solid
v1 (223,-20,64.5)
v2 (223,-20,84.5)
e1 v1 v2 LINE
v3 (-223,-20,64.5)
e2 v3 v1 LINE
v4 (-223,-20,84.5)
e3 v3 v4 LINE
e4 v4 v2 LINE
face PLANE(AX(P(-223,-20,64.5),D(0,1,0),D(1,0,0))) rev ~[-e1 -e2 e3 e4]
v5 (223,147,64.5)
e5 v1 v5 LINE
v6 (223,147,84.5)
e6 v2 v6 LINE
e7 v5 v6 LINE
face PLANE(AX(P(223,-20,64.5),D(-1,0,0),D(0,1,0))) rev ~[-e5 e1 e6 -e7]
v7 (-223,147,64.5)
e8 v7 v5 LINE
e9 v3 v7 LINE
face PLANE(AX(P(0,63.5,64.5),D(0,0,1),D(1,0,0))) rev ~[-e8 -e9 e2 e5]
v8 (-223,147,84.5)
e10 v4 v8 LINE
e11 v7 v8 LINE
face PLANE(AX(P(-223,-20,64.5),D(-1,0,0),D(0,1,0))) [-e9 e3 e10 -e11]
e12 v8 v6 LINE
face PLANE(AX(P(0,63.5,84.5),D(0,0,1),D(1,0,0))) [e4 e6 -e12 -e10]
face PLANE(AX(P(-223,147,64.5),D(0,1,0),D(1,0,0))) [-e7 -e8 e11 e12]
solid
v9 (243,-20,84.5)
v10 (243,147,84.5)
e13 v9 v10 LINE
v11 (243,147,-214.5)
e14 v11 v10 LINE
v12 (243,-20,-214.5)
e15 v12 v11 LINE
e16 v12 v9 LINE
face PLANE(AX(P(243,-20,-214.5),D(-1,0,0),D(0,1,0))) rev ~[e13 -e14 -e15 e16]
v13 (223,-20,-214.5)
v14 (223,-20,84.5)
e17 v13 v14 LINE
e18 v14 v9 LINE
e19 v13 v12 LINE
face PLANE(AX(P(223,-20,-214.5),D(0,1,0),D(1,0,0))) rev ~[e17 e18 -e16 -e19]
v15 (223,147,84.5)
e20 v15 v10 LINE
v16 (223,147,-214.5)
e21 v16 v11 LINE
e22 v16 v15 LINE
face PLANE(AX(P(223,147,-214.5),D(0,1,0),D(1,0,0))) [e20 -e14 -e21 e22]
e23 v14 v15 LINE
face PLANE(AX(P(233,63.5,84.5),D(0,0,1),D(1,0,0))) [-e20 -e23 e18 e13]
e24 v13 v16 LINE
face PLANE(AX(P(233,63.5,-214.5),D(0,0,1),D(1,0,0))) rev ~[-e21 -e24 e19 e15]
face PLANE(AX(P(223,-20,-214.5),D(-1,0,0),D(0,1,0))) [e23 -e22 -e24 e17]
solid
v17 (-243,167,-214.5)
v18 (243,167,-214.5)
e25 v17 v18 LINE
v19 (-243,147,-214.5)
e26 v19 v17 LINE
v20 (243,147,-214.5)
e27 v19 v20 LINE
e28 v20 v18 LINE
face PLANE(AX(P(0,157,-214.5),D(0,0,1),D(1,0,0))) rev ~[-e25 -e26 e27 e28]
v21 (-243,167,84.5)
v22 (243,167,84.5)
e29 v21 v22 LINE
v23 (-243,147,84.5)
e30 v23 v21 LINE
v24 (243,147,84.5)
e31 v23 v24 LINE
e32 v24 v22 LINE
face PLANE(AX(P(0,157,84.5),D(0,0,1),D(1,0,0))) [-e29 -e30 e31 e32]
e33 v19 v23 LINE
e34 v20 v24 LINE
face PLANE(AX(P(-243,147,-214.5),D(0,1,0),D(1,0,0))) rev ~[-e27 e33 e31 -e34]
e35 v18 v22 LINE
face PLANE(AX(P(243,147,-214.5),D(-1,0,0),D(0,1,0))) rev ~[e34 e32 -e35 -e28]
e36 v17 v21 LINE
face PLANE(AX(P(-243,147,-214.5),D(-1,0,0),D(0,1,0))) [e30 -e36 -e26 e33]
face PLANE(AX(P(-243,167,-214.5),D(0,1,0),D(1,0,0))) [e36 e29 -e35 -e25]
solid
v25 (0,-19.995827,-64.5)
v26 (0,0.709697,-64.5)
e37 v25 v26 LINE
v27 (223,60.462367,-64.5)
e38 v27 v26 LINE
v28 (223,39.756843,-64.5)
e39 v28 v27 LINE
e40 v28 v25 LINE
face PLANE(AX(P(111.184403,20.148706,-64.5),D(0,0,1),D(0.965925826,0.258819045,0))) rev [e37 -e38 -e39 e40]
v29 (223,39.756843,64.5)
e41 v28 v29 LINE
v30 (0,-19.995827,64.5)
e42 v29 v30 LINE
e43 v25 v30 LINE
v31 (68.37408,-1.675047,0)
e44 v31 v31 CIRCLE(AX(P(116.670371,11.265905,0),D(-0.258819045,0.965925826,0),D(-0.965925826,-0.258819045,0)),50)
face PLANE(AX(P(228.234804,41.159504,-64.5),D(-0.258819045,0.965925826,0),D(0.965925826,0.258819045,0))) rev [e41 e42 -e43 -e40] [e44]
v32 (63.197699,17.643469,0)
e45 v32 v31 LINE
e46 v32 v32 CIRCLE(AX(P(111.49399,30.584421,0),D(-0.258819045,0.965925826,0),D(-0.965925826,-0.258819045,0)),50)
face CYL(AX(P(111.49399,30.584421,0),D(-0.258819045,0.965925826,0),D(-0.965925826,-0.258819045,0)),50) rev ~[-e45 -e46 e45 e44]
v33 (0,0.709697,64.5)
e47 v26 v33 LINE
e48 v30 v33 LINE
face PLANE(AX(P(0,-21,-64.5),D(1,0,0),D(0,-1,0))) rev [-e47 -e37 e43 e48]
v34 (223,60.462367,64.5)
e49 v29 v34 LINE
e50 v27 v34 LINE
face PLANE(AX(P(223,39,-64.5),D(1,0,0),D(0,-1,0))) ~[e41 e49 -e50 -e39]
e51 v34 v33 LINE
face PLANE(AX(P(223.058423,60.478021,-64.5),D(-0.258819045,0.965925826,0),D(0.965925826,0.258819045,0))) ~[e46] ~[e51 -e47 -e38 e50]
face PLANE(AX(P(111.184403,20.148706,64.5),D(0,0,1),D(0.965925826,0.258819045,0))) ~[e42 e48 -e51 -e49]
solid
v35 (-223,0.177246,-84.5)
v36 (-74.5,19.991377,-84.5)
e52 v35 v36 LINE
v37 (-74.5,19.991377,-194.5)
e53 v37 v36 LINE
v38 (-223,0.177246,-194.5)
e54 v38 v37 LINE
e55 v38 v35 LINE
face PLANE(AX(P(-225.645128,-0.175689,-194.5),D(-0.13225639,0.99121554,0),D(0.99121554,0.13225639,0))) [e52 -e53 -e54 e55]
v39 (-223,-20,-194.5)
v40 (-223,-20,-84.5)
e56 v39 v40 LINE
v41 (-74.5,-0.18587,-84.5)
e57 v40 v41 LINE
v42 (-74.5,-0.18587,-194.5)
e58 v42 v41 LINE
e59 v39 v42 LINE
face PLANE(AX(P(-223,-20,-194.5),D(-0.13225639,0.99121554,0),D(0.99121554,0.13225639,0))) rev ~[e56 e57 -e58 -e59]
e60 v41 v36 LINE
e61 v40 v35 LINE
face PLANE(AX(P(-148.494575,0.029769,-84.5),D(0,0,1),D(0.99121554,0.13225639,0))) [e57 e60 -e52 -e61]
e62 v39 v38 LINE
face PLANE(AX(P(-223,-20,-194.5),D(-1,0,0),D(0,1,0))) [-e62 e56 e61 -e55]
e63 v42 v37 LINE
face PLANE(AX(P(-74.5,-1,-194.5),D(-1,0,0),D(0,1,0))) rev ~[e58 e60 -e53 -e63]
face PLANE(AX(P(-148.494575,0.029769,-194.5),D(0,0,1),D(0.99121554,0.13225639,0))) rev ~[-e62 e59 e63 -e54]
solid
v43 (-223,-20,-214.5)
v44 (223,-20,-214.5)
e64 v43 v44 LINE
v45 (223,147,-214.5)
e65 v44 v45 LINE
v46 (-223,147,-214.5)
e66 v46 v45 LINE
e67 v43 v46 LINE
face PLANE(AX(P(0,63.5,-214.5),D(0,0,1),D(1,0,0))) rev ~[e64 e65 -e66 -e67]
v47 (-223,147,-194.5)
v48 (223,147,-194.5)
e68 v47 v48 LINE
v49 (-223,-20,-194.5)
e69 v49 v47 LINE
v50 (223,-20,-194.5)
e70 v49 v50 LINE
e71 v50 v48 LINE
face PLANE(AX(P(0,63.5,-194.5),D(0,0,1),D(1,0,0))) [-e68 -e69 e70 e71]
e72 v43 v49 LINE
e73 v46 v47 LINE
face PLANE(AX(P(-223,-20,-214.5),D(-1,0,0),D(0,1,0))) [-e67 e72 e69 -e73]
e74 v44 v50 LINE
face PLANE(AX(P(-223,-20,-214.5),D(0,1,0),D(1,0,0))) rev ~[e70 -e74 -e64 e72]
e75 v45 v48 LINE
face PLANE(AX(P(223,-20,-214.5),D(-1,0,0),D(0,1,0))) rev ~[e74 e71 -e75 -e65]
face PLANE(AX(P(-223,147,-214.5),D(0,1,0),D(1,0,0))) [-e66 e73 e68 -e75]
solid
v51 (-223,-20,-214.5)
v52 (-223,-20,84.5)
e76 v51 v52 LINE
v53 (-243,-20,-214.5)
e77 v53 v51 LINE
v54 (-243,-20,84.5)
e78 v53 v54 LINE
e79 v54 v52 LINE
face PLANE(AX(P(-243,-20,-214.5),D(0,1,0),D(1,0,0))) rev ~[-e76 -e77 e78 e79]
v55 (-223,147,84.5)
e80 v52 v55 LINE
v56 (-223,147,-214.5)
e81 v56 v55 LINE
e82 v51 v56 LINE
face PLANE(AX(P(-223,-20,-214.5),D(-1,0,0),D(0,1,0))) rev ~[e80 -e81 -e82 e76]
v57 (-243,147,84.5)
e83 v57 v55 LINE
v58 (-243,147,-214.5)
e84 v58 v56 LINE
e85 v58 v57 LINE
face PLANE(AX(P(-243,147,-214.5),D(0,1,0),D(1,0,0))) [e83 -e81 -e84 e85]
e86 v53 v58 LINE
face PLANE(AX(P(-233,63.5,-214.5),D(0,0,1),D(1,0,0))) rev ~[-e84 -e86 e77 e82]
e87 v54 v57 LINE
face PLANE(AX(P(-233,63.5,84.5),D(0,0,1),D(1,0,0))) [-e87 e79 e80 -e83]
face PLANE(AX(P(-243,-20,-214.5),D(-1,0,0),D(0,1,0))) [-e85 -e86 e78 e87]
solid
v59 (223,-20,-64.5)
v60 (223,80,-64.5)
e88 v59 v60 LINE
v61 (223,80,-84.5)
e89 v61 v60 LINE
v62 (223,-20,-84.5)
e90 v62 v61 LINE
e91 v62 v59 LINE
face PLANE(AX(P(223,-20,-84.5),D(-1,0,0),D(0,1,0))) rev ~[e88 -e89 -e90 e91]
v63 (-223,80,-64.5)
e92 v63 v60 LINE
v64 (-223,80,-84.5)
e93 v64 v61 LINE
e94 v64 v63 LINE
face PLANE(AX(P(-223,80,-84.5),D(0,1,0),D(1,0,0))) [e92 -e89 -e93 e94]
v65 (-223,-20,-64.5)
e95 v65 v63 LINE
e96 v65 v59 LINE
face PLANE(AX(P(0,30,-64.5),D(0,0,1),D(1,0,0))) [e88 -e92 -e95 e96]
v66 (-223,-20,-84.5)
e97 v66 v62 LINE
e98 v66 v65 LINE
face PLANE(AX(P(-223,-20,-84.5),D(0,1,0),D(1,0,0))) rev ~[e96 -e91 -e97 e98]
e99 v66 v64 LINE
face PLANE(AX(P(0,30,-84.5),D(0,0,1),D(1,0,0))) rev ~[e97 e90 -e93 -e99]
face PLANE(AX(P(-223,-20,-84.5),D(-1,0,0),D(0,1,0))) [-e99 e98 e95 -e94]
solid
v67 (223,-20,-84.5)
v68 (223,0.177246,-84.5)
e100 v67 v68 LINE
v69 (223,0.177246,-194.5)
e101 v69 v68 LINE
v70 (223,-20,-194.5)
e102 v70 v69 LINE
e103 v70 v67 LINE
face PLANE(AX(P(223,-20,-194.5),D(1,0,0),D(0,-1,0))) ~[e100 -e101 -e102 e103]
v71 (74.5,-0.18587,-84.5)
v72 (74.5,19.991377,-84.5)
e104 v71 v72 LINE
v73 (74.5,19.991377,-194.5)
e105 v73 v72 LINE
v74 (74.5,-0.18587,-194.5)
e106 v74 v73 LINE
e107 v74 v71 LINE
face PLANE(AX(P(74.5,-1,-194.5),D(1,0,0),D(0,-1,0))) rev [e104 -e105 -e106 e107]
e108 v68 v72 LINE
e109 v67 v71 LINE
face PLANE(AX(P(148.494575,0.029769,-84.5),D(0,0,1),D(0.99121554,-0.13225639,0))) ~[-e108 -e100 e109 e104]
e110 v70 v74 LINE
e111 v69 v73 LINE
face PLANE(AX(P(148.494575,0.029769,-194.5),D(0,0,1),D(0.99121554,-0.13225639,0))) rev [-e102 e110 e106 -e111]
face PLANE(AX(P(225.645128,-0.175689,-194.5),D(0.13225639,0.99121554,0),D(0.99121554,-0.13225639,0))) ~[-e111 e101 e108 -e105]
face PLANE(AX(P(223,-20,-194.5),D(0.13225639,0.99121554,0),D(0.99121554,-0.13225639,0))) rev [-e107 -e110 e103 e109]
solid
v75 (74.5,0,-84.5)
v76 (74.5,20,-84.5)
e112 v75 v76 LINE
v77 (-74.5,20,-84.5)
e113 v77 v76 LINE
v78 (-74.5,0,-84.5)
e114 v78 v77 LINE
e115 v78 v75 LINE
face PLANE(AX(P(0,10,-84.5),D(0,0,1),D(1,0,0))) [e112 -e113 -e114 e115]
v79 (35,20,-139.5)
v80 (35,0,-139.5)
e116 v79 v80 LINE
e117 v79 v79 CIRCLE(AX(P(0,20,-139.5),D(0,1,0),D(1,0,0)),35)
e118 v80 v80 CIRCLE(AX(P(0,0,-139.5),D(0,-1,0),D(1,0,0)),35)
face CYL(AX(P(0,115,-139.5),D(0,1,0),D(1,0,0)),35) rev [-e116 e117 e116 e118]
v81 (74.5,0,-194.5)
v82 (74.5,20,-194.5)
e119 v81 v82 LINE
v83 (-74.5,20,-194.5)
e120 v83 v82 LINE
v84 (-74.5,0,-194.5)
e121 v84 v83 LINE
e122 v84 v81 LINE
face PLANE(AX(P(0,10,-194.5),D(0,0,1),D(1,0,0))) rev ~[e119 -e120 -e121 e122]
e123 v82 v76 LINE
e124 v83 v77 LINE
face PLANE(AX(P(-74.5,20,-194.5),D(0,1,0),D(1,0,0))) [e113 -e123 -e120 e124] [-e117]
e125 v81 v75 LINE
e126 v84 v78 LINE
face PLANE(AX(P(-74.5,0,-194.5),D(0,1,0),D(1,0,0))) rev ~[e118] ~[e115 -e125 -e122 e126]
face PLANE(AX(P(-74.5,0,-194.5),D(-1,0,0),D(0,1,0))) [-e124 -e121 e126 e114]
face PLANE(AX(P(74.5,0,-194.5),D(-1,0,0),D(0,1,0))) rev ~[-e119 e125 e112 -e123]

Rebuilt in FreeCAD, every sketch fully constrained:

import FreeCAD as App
import Part
import Sketcher
Q = App.Units.Quantity

doc = App.newDocument("Part")
body = doc.addObject("PartDesign::Body", "Body")

# Sketch on XY plane
sketch1 = body.newObject("Sketcher::SketchObject", "Sketch")
sketch1.AttachmentSupport = (doc.getObject("XY_Plane"), [""])
sketch1.MapMode = "FlatFace"
sketch1.AttachmentOffset = App.Placement(App.Vector(0, 0, -214.5), App.Rotation())
sketch1.addGeometry(Part.LineSegment(App.Vector(-243, 147, 0), App.Vector(-243, -20, 0)), False)
sketch1.addGeometry(Part.LineSegment(App.Vector(-243, -20, 0), App.Vector(-223, -20, 0)), False)
sketch1.addGeometry(Part.LineSegment(App.Vector(-223, -20, 0), App.Vector(-223, 147, 0)), False)
sketch1.addGeometry(Part.LineSegment(App.Vector(-223, 147, 0), App.Vector(-243, 147, 0)), False)
sketch1.addConstraint(Sketcher.Constraint("Coincident", 0, 2, 1, 1))
sketch1.addConstraint(Sketcher.Constraint("Coincident", 1, 2, 2, 1))
sketch1.addConstraint(Sketcher.Constraint("Coincident", 2, 2, 3, 1))
sketch1.addConstraint(Sketcher.Constraint("Coincident", 3, 2, 0, 1))
sketch1.addConstraint(Sketcher.Constraint("Vertical", 0))
sketch1.addConstraint(Sketcher.Constraint("Horizontal", 1))
sketch1.addConstraint(Sketcher.Constraint("Vertical", 2))
sketch1.addConstraint(Sketcher.Constraint("Horizontal", 3))
sketch1.addConstraint(Sketcher.Constraint("DistanceX", 1, 1, 1, 2, Q("20 mm")))
sketch1.addConstraint(Sketcher.Constraint("DistanceY", 0, 2, 0, 1, Q("167 mm")))
sketch1.addConstraint(Sketcher.Constraint("DistanceX", 0, 2, -1, 1, Q("243 mm")))
sketch1.addConstraint(Sketcher.Constraint("DistanceY", 0, 2, -1, 1, Q("20 mm")))
pad1 = body.newObject("PartDesign::Pad", "Pad")
pad1.Profile = sketch1
pad1.Length = 299
body2 = doc.addObject("PartDesign::Body", "Body001")

# Sketch on XY plane
sketch2 = body2.newObject("Sketcher::SketchObject", "Sketch001")
sketch2.AttachmentSupport = (doc.getObject("XY_Plane001"), [""])
sketch2.MapMode = "FlatFace"
sketch2.AttachmentOffset = App.Placement(App.Vector(0, 0, -214.5), App.Rotation())
sketch2.addGeometry(Part.LineSegment(App.Vector(223, 147, 0), App.Vector(223, -20, 0)), False)
sketch2.addGeometry(Part.LineSegment(App.Vector(223, -20, 0), App.Vector(243, -20, 0)), False)
sketch2.addGeometry(Part.LineSegment(App.Vector(243, -20, 0), App.Vector(243, 147, 0)), False)
sketch2.addGeometry(Part.LineSegment(App.Vector(243, 147, 0), App.Vector(223, 147, 0)), False)
sketch2.addConstraint(Sketcher.Constraint("Coincident", 0, 2, 1, 1))
sketch2.addConstraint(Sketcher.Constraint("Coincident", 1, 2, 2, 1))
sketch2.addConstraint(Sketcher.Constraint("Coincident", 2, 2, 3, 1))
sketch2.addConstraint(Sketcher.Constraint("Coincident", 3, 2, 0, 1))
sketch2.addConstraint(Sketcher.Constraint("Vertical", 0))
sketch2.addConstraint(Sketcher.Constraint("Horizontal", 1))
sketch2.addConstraint(Sketcher.Constraint("Vertical", 2))
sketch2.addConstraint(Sketcher.Constraint("Horizontal", 3))
sketch2.addConstraint(Sketcher.Constraint("DistanceX", 1, 1, 1, 2, Q("20 mm")))
sketch2.addConstraint(Sketcher.Constraint("DistanceY", 0, 2, 0, 1, Q("167 mm")))
sketch2.addConstraint(Sketcher.Constraint("DistanceX", -1, 1, 0, 2, Q("223 mm")))
sketch2.addConstraint(Sketcher.Constraint("DistanceY", 0, 2, -1, 1, Q("20 mm")))
pad2 = body2.newObject("PartDesign::Pad", "Pad001")
pad2.Profile = sketch2
pad2.Length = 299
body3 = doc.addObject("PartDesign::Body", "Body002")

# Sketch on XY plane
sketch3 = body3.newObject("Sketcher::SketchObject", "Sketch002")
sketch3.AttachmentSupport = (doc.getObject("XY_Plane002"), [""])
sketch3.MapMode = "FlatFace"
sketch3.AttachmentOffset = App.Placement(App.Vector(0, 0, 64.5), App.Rotation())
sketch3.addGeometry(Part.LineSegment(App.Vector(-223, 147, 0), App.Vector(-223, -20, 0)), False)
sketch3.addGeometry(Part.LineSegment(App.Vector(-223, -20, 0), App.Vector(223, -20, 0)), False)
sketch3.addGeometry(Part.LineSegment(App.Vector(223, -20, 0), App.Vector(223, 147, 0)), False)
sketch3.addGeometry(Part.LineSegment(App.Vector(223, 147, 0), App.Vector(-223, 147, 0)), False)
sketch3.addConstraint(Sketcher.Constraint("Coincident", 0, 2, 1, 1))
sketch3.addConstraint(Sketcher.Constraint("Coincident", 1, 2, 2, 1))
sketch3.addConstraint(Sketcher.Constraint("Coincident", 2, 2, 3, 1))
sketch3.addConstraint(Sketcher.Constraint("Coincident", 3, 2, 0, 1))
sketch3.addConstraint(Sketcher.Constraint("Vertical", 0))
sketch3.addConstraint(Sketcher.Constraint("Horizontal", 1))
sketch3.addConstraint(Sketcher.Constraint("Vertical", 2))
sketch3.addConstraint(Sketcher.Constraint("Horizontal", 3))
sketch3.addConstraint(Sketcher.Constraint("DistanceX", 1, 1, 1, 2, Q("446 mm")))
sketch3.addConstraint(Sketcher.Constraint("DistanceY", 0, 2, 0, 1, Q("167 mm")))
sketch3.addConstraint(Sketcher.Constraint("DistanceX", 0, 2, -1, 1, Q("223 mm")))
sketch3.addConstraint(Sketcher.Constraint("DistanceY", 0, 2, -1, 1, Q("20 mm")))
pad3 = body3.newObject("PartDesign::Pad", "Pad002")
pad3.Profile = sketch3
pad3.Length = 20
body4 = doc.addObject("PartDesign::Body", "Body003")

# Sketch on XY plane
sketch4 = body4.newObject("Sketcher::SketchObject", "Sketch003")
sketch4.AttachmentSupport = (doc.getObject("XY_Plane003"), [""])
sketch4.MapMode = "FlatFace"
sketch4.AttachmentOffset = App.Placement(App.Vector(0, 0, -214.5), App.Rotation())
sketch4.addGeometry(Part.LineSegment(App.Vector(-243, 167, 0), App.Vector(-243, 147, 0)), False)
sketch4.addGeometry(Part.LineSegment(App.Vector(-243, 147, 0), App.Vector(243, 147, 0)), False)
sketch4.addGeometry(Part.LineSegment(App.Vector(243, 147, 0), App.Vector(243, 167, 0)), False)
sketch4.addGeometry(Part.LineSegment(App.Vector(243, 167, 0), App.Vector(-243, 167, 0)), False)
sketch4.addConstraint(Sketcher.Constraint("Coincident", 0, 2, 1, 1))
sketch4.addConstraint(Sketcher.Constraint("Coincident", 1, 2, 2, 1))
sketch4.addConstraint(Sketcher.Constraint("Coincident", 2, 2, 3, 1))
sketch4.addConstraint(Sketcher.Constraint("Coincident", 3, 2, 0, 1))
sketch4.addConstraint(Sketcher.Constraint("Vertical", 0))
sketch4.addConstraint(Sketcher.Constraint("Horizontal", 1))
sketch4.addConstraint(Sketcher.Constraint("Vertical", 2))
sketch4.addConstraint(Sketcher.Constraint("Horizontal", 3))
sketch4.addConstraint(Sketcher.Constraint("DistanceX", 1, 1, 1, 2, Q("486 mm")))
sketch4.addConstraint(Sketcher.Constraint("DistanceY", 0, 2, 0, 1, Q("20 mm")))
sketch4.addConstraint(Sketcher.Constraint("DistanceX", 0, 2, -1, 1, Q("243 mm")))
sketch4.addConstraint(Sketcher.Constraint("DistanceY", -1, 1, 0, 2, Q("147 mm")))
pad4 = body4.newObject("PartDesign::Pad", "Pad003")
pad4.Profile = sketch4
pad4.Length = 299
body5 = doc.addObject("PartDesign::Body", "Body004")

# Sketch on XY plane
sketch5 = body5.newObject("Sketcher::SketchObject", "Sketch004")
sketch5.AttachmentSupport = (doc.getObject("XY_Plane004"), [""])
sketch5.MapMode = "FlatFace"
sketch5.AttachmentOffset = App.Placement(App.Vector(0, 0, -214.5), App.Rotation())
sketch5.addGeometry(Part.LineSegment(App.Vector(-223, 147, 0), App.Vector(-223, -20, 0)), False)
sketch5.addGeometry(Part.LineSegment(App.Vector(-223, -20, 0), App.Vector(223, -20, 0)), False)
sketch5.addGeometry(Part.LineSegment(App.Vector(223, -20, 0), App.Vector(223, 147, 0)), False)
sketch5.addGeometry(Part.LineSegment(App.Vector(223, 147, 0), App.Vector(-223, 147, 0)), False)
sketch5.addConstraint(Sketcher.Constraint("Coincident", 0, 2, 1, 1))
sketch5.addConstraint(Sketcher.Constraint("Coincident", 1, 2, 2, 1))
sketch5.addConstraint(Sketcher.Constraint("Coincident", 2, 2, 3, 1))
sketch5.addConstraint(Sketcher.Constraint("Coincident", 3, 2, 0, 1))
sketch5.addConstraint(Sketcher.Constraint("Vertical", 0))
sketch5.addConstraint(Sketcher.Constraint("Horizontal", 1))
sketch5.addConstraint(Sketcher.Constraint("Vertical", 2))
sketch5.addConstraint(Sketcher.Constraint("Horizontal", 3))
sketch5.addConstraint(Sketcher.Constraint("DistanceX", 1, 1, 1, 2, Q("446 mm")))
sketch5.addConstraint(Sketcher.Constraint("DistanceY", 0, 2, 0, 1, Q("167 mm")))
sketch5.addConstraint(Sketcher.Constraint("DistanceX", 0, 2, -1, 1, Q("223 mm")))
sketch5.addConstraint(Sketcher.Constraint("DistanceY", 0, 2, -1, 1, Q("20 mm")))
pad5 = body5.newObject("PartDesign::Pad", "Pad004")
pad5.Profile = sketch5
pad5.Length = 20
body6 = doc.addObject("PartDesign::Body", "Body005")

# Sketch on XY plane
sketch6 = body6.newObject("Sketcher::SketchObject", "Sketch005")
sketch6.AttachmentSupport = (doc.getObject("XY_Plane005"), [""])
sketch6.MapMode = "FlatFace"
sketch6.AttachmentOffset = App.Placement(App.Vector(0, 0, -84.5), App.Rotation())
sketch6.addGeometry(Part.LineSegment(App.Vector(-223, 80, 0), App.Vector(-223, -20, 0)), False)
sketch6.addGeometry(Part.LineSegment(App.Vector(-223, -20, 0), App.Vector(223, -20, 0)), False)
sketch6.addGeometry(Part.LineSegment(App.Vector(223, -20, 0), App.Vector(223, 80, 0)), False)
sketch6.addGeometry(Part.LineSegment(App.Vector(223, 80, 0), App.Vector(-223, 80, 0)), False)
sketch6.addConstraint(Sketcher.Constraint("Coincident", 0, 2, 1, 1))
sketch6.addConstraint(Sketcher.Constraint("Coincident", 1, 2, 2, 1))
sketch6.addConstraint(Sketcher.Constraint("Coincident", 2, 2, 3, 1))
sketch6.addConstraint(Sketcher.Constraint("Coincident", 3, 2, 0, 1))
sketch6.addConstraint(Sketcher.Constraint("Vertical", 0))
sketch6.addConstraint(Sketcher.Constraint("Horizontal", 1))
sketch6.addConstraint(Sketcher.Constraint("Vertical", 2))
sketch6.addConstraint(Sketcher.Constraint("Horizontal", 3))
sketch6.addConstraint(Sketcher.Constraint("DistanceX", 1, 1, 1, 2, Q("446 mm")))
sketch6.addConstraint(Sketcher.Constraint("DistanceY", 0, 2, 0, 1, Q("100 mm")))
sketch6.addConstraint(Sketcher.Constraint("DistanceX", 0, 2, -1, 1, Q("223 mm")))
sketch6.addConstraint(Sketcher.Constraint("DistanceY", 0, 2, -1, 1, Q("20 mm")))
pad6 = body6.newObject("PartDesign::Pad", "Pad005")
pad6.Profile = sketch6
pad6.Length = 20
body7 = doc.addObject("PartDesign::Body", "Body006")

# Sketch on XY plane
sketch7 = body7.newObject("Sketcher::SketchObject", "Sketch006")
sketch7.AttachmentSupport = (doc.getObject("XY_Plane006"), [""])
sketch7.MapMode = "FlatFace"
sketch7.addGeometry(Part.Circle(App.Vector(0, 0, 0), App.Vector(0, 0, 1), 35), False)
sketch7.addConstraint(Sketcher.Constraint("Coincident", 0, 3, -1, 1))
sketch7.addConstraint(Sketcher.Constraint("Diameter", 0, Q("70 mm")))
pad7 = body7.newObject("PartDesign::Pad", "Pad006")
pad7.Profile = sketch7
pad7.Length = 115
body8 = doc.addObject("PartDesign::Body", "Body007")
doc.recompute()

body7.Placement = App.Placement(App.Vector(0, 0, 0), App.Rotation(App.Vector(1, 0, 0), 90))
boolean = body8.newObject("PartDesign::Boolean", "Boolean")
boolean.Type = "Fuse"
boolean.addObjects([body7])
body9 = doc.addObject("PartDesign::Body", "Body008")
doc.recompute()

body8.Placement = App.Placement(App.Vector(0, 115, -139.5), App.Rotation(App.Vector(0, 0, 1), 0))
boolean2 = body9.newObject("PartDesign::Boolean", "Boolean001")
boolean2.Type = "Fuse"
boolean2.addObjects([body8])
body10 = doc.addObject("PartDesign::Body", "Body009")

# Sketch on XY plane
sketch8 = body10.newObject("Sketcher::SketchObject", "Sketch007")
sketch8.AttachmentSupport = (doc.getObject("XY_Plane009"), [""])
sketch8.MapMode = "FlatFace"
sketch8.AttachmentOffset = App.Placement(App.Vector(0, 0, -194.5), App.Rotation())
sketch8.addGeometry(Part.LineSegment(App.Vector(-74, 20, 0), App.Vector(-74, 0, 0)), False)
sketch8.addGeometry(Part.LineSegment(App.Vector(-74, 0, 0), App.Vector(74, 0, 0)), False)
sketch8.addGeometry(Part.LineSegment(App.Vector(74, 0, 0), App.Vector(74, 20, 0)), False)
sketch8.addGeometry(Part.LineSegment(App.Vector(74, 20, 0), App.Vector(-74, 20, 0)), False)
sketch8.addConstraint(Sketcher.Constraint("Coincident", 0, 2, 1, 1))
sketch8.addConstraint(Sketcher.Constraint("Coincident", 1, 2, 2, 1))
sketch8.addConstraint(Sketcher.Constraint("Coincident", 2, 2, 3, 1))
sketch8.addConstraint(Sketcher.Constraint("Coincident", 3, 2, 0, 1))
sketch8.addConstraint(Sketcher.Constraint("Vertical", 0))
sketch8.addConstraint(Sketcher.Constraint("Horizontal", 1))
sketch8.addConstraint(Sketcher.Constraint("Vertical", 2))
sketch8.addConstraint(Sketcher.Constraint("Horizontal", 3))
sketch8.addConstraint(Sketcher.Constraint("Symmetric", 0, 2, 1, 2, -1, 1))
sketch8.addConstraint(Sketcher.Constraint("DistanceX", 1, 1, 1, 2, Q("149 mm")))
sketch8.addConstraint(Sketcher.Constraint("DistanceY", 0, 2, 0, 1, Q("20 mm")))
pad8 = body10.newObject("PartDesign::Pad", "Pad007")
pad8.Profile = sketch8
pad8.Length = 110
doc.recompute()

boolean3 = body10.newObject("PartDesign::Boolean", "Boolean002")
boolean3.Type = "Cut"
boolean3.addObjects([body9])
body11 = doc.addObject("PartDesign::Body", "Body010")

# Sketch on XY plane
sketch9 = body11.newObject("Sketcher::SketchObject", "Sketch008")
sketch9.AttachmentSupport = (doc.getObject("XY_Plane010"), [""])
sketch9.MapMode = "FlatFace"
sketch9.AttachmentOffset = App.Placement(App.Vector(0, 0, -194.5), App.Rotation())
sketch9.addGeometry(Part.LineSegment(App.Vector(-74, 22, 0), App.Vector(-74, -1, 0)), False)
sketch9.addGeometry(Part.LineSegment(App.Vector(-74, -1, 0), App.Vector(-64, -1, 0)), False)
sketch9.addGeometry(Part.LineSegment(App.Vector(-64, -1, 0), App.Vector(-64, 22, 0)), False)
sketch9.addGeometry(Part.LineSegment(App.Vector(-64, 22, 0), App.Vector(-74, 22, 0)), False)
sketch9.addConstraint(Sketcher.Constraint("Coincident", 0, 2, 1, 1))
sketch9.addConstraint(Sketcher.Constraint("Coincident", 1, 2, 2, 1))
sketch9.addConstraint(Sketcher.Constraint("Coincident", 2, 2, 3, 1))
sketch9.addConstraint(Sketcher.Constraint("Coincident", 3, 2, 0, 1))
sketch9.addConstraint(Sketcher.Constraint("Vertical", 0))
sketch9.addConstraint(Sketcher.Constraint("Horizontal", 1))
sketch9.addConstraint(Sketcher.Constraint("Vertical", 2))
sketch9.addConstraint(Sketcher.Constraint("Horizontal", 3))
sketch9.addConstraint(Sketcher.Constraint("DistanceX", 1, 1, 1, 2, Q("10 mm")))
sketch9.addConstraint(Sketcher.Constraint("DistanceY", 0, 2, 0, 1, Q("23 mm")))
sketch9.addConstraint(Sketcher.Constraint("DistanceY", 0, 2, -1, 1, Q("1 mm")))
sketch9.addConstraint(Sketcher.Constraint("DistanceX", 0, 2, -1, 1, Q("74.5 mm")))
pad9 = body11.newObject("PartDesign::Pad", "Pad008")
pad9.Profile = sketch9
pad9.Length = 110
body12 = doc.addObject("PartDesign::Body", "Body011")

# Sketch on XY plane
sketch10 = body12.newObject("Sketcher::SketchObject", "Sketch009")
sketch10.AttachmentSupport = (doc.getObject("XY_Plane011"), [""])
sketch10.MapMode = "FlatFace"
sketch10.AttachmentOffset = App.Placement(App.Vector(0, 0, -194.5), App.Rotation())
sketch10.addGeometry(Part.LineSegment(App.Vector(-243, 1, 0), App.Vector(-243, -20, 0)), False)
sketch10.addGeometry(Part.LineSegment(App.Vector(-243, -20, 0), App.Vector(-223, -20, 0)), False)
sketch10.addGeometry(Part.LineSegment(App.Vector(-223, -20, 0), App.Vector(-223, 1, 0)), False)
sketch10.addGeometry(Part.LineSegment(App.Vector(-223, 1, 0), App.Vector(-243, 1, 0)), False)
sketch10.addConstraint(Sketcher.Constraint("Coincident", 0, 2, 1, 1))
sketch10.addConstraint(Sketcher.Constraint("Coincident", 1, 2, 2, 1))
sketch10.addConstraint(Sketcher.Constraint("Coincident", 2, 2, 3, 1))
sketch10.addConstraint(Sketcher.Constraint("Coincident", 3, 2, 0, 1))
sketch10.addConstraint(Sketcher.Constraint("Vertical", 0))
sketch10.addConstraint(Sketcher.Constraint("Horizontal", 1))
sketch10.addConstraint(Sketcher.Constraint("Vertical", 2))
sketch10.addConstraint(Sketcher.Constraint("Horizontal", 3))
sketch10.addConstraint(Sketcher.Constraint("DistanceX", 1, 1, 1, 2, Q("20 mm")))
sketch10.addConstraint(Sketcher.Constraint("DistanceY", 0, 2, 0, 1, Q("21 mm")))
sketch10.addConstraint(Sketcher.Constraint("DistanceX", 0, 2, -1, 1, Q("243 mm")))
sketch10.addConstraint(Sketcher.Constraint("DistanceY", 0, 2, -1, 1, Q("20 mm")))
pad10 = body12.newObject("PartDesign::Pad", "Pad009")
pad10.Profile = sketch10
pad10.Length = 110
body13 = doc.addObject("PartDesign::Body", "Body012")

# Sketch on XY plane
sketch11 = body13.newObject("Sketcher::SketchObject", "Sketch010")
sketch11.AttachmentSupport = (doc.getObject("XY_Plane012"), [""])
sketch11.MapMode = "FlatFace"
sketch11.addGeometry(Part.LineSegment(App.Vector(0, 20, 0), App.Vector(0, 0, 0)), False)
sketch11.addGeometry(Part.LineSegment(App.Vector(0, 0, 0), App.Vector(153, 0, 0)), False)
sketch11.addGeometry(Part.LineSegment(App.Vector(153, 0, 0), App.Vector(153, 20, 0)), False)
sketch11.addGeometry(Part.LineSegment(App.Vector(153, 20, 0), App.Vector(0, 20, 0)), False)
sketch11.addConstraint(Sketcher.Constraint("Coincident", 0, 2, 1, 1))
sketch11.addConstraint(Sketcher.Constraint("Coincident", 1, 2, 2, 1))
sketch11.addConstraint(Sketcher.Constraint("Coincident", 2, 2, 3, 1))
sketch11.addConstraint(Sketcher.Constraint("Coincident", 3, 2, 0, 1))
sketch11.addConstraint(Sketcher.Constraint("Vertical", 0))
sketch11.addConstraint(Sketcher.Constraint("Horizontal", 1))
sketch11.addConstraint(Sketcher.Constraint("Vertical", 2))
sketch11.addConstraint(Sketcher.Constraint("Horizontal", 3))
sketch11.addConstraint(Sketcher.Constraint("Coincident", 0, 2, -1, 1))
sketch11.addConstraint(Sketcher.Constraint("DistanceX", 1, 1, 1, 2, Q("153 mm")))
sketch11.addConstraint(Sketcher.Constraint("DistanceY", 0, 2, 0, 1, Q("20 mm")))
pad11 = body13.newObject("PartDesign::Pad", "Pad010")
pad11.Profile = sketch11
pad11.Length = 110
body14 = doc.addObject("PartDesign::Body", "Body013")
doc.recompute()

body13.Placement = App.Placement(App.Vector(-223, -20, -194.5), App.Rotation(App.Vector(0, 0, 1), 7.6))
boolean4 = body14.newObject("PartDesign::Boolean", "Boolean003")
boolean4.Type = "Fuse"
boolean4.addObjects([body13])
doc.recompute()

boolean5 = body14.newObject("PartDesign::Boolean", "Boolean004")
boolean5.Type = "Cut"
boolean5.addObjects([body12])
doc.recompute()

boolean6 = body14.newObject("PartDesign::Boolean", "Boolean005")
boolean6.Type = "Cut"
boolean6.addObjects([body11])
body15 = doc.addObject("PartDesign::Body", "Body014")

# Sketch on XY plane
sketch12 = body15.newObject("Sketcher::SketchObject", "Sketch011")
sketch12.AttachmentSupport = (doc.getObject("XY_Plane014"), [""])
sketch12.MapMode = "FlatFace"
sketch12.AttachmentOffset = App.Placement(App.Vector(0, 0, -194.5), App.Rotation())
sketch12.addGeometry(Part.LineSegment(App.Vector(-74, 22, 0), App.Vector(-74, -1, 0)), False)
sketch12.addGeometry(Part.LineSegment(App.Vector(-74, -1, 0), App.Vector(-64, -1, 0)), False)
sketch12.addGeometry(Part.LineSegment(App.Vector(-64, -1, 0), App.Vector(-64, 22, 0)), False)
sketch12.addGeometry(Part.LineSegment(App.Vector(-64, 22, 0), App.Vector(-74, 22, 0)), False)
sketch12.addConstraint(Sketcher.Constraint("Coincident", 0, 2, 1, 1))
sketch12.addConstraint(Sketcher.Constraint("Coincident", 1, 2, 2, 1))
sketch12.addConstraint(Sketcher.Constraint("Coincident", 2, 2, 3, 1))
sketch12.addConstraint(Sketcher.Constraint("Coincident", 3, 2, 0, 1))
sketch12.addConstraint(Sketcher.Constraint("Vertical", 0))
sketch12.addConstraint(Sketcher.Constraint("Horizontal", 1))
sketch12.addConstraint(Sketcher.Constraint("Vertical", 2))
sketch12.addConstraint(Sketcher.Constraint("Horizontal", 3))
sketch12.addConstraint(Sketcher.Constraint("DistanceX", 1, 1, 1, 2, Q("10 mm")))
sketch12.addConstraint(Sketcher.Constraint("DistanceY", 0, 2, 0, 1, Q("23 mm")))
sketch12.addConstraint(Sketcher.Constraint("DistanceY", 0, 2, -1, 1, Q("1 mm")))
sketch12.addConstraint(Sketcher.Constraint("DistanceX", 0, 2, -1, 1, Q("74.5 mm")))
pad12 = body15.newObject("PartDesign::Pad", "Pad011")
pad12.Profile = sketch12
pad12.Length = 110
body16 = doc.addObject("PartDesign::Body", "Body015")

# Sketch on XY plane
sketch13 = body16.newObject("Sketcher::SketchObject", "Sketch012")
sketch13.AttachmentSupport = (doc.getObject("XY_Plane015"), [""])
sketch13.MapMode = "FlatFace"
sketch13.AttachmentOffset = App.Placement(App.Vector(0, 0, -194.5), App.Rotation())
sketch13.addGeometry(Part.LineSegment(App.Vector(-243, 1, 0), App.Vector(-243, -20, 0)), False)
sketch13.addGeometry(Part.LineSegment(App.Vector(-243, -20, 0), App.Vector(-223, -20, 0)), False)
sketch13.addGeometry(Part.LineSegment(App.Vector(-223, -20, 0), App.Vector(-223, 1, 0)), False)
sketch13.addGeometry(Part.LineSegment(App.Vector(-223, 1, 0), App.Vector(-243, 1, 0)), False)
sketch13.addConstraint(Sketcher.Constraint("Coincident", 0, 2, 1, 1))
sketch13.addConstraint(Sketcher.Constraint("Coincident", 1, 2, 2, 1))
sketch13.addConstraint(Sketcher.Constraint("Coincident", 2, 2, 3, 1))
sketch13.addConstraint(Sketcher.Constraint("Coincident", 3, 2, 0, 1))
sketch13.addConstraint(Sketcher.Constraint("Vertical", 0))
sketch13.addConstraint(Sketcher.Constraint("Horizontal", 1))
sketch13.addConstraint(Sketcher.Constraint("Vertical", 2))
sketch13.addConstraint(Sketcher.Constraint("Horizontal", 3))
sketch13.addConstraint(Sketcher.Constraint("DistanceX", 1, 1, 1, 2, Q("20 mm")))
sketch13.addConstraint(Sketcher.Constraint("DistanceY", 0, 2, 0, 1, Q("21 mm")))
sketch13.addConstraint(Sketcher.Constraint("DistanceX", 0, 2, -1, 1, Q("243 mm")))
sketch13.addConstraint(Sketcher.Constraint("DistanceY", 0, 2, -1, 1, Q("20 mm")))
pad13 = body16.newObject("PartDesign::Pad", "Pad012")
pad13.Profile = sketch13
pad13.Length = 110
body17 = doc.addObject("PartDesign::Body", "Body016")

# Sketch on XY plane
sketch14 = body17.newObject("Sketcher::SketchObject", "Sketch013")
sketch14.AttachmentSupport = (doc.getObject("XY_Plane016"), [""])
sketch14.MapMode = "FlatFace"
sketch14.addGeometry(Part.LineSegment(App.Vector(0, 20, 0), App.Vector(0, 0, 0)), False)
sketch14.addGeometry(Part.LineSegment(App.Vector(0, 0, 0), App.Vector(153, 0, 0)), False)
sketch14.addGeometry(Part.LineSegment(App.Vector(153, 0, 0), App.Vector(153, 20, 0)), False)
sketch14.addGeometry(Part.LineSegment(App.Vector(153, 20, 0), App.Vector(0, 20, 0)), False)
sketch14.addConstraint(Sketcher.Constraint("Coincident", 0, 2, 1, 1))
sketch14.addConstraint(Sketcher.Constraint("Coincident", 1, 2, 2, 1))
sketch14.addConstraint(Sketcher.Constraint("Coincident", 2, 2, 3, 1))
sketch14.addConstraint(Sketcher.Constraint("Coincident", 3, 2, 0, 1))
sketch14.addConstraint(Sketcher.Constraint("Vertical", 0))
sketch14.addConstraint(Sketcher.Constraint("Horizontal", 1))
sketch14.addConstraint(Sketcher.Constraint("Vertical", 2))
sketch14.addConstraint(Sketcher.Constraint("Horizontal", 3))
sketch14.addConstraint(Sketcher.Constraint("Coincident", 0, 2, -1, 1))
sketch14.addConstraint(Sketcher.Constraint("DistanceX", 1, 1, 1, 2, Q("153 mm")))
sketch14.addConstraint(Sketcher.Constraint("DistanceY", 0, 2, 0, 1, Q("20 mm")))
pad14 = body17.newObject("PartDesign::Pad", "Pad013")
pad14.Profile = sketch14
pad14.Length = 110
body18 = doc.addObject("PartDesign::Body", "Body017")
doc.recompute()

body17.Placement = App.Placement(App.Vector(-223, -20, -194.5), App.Rotation(App.Vector(0, 0, 1), 7.6))
boolean7 = body18.newObject("PartDesign::Boolean", "Boolean006")
boolean7.Type = "Fuse"
boolean7.addObjects([body17])
doc.recompute()

boolean8 = body18.newObject("PartDesign::Boolean", "Boolean007")
boolean8.Type = "Cut"
boolean8.addObjects([body16])
doc.recompute()

boolean9 = body18.newObject("PartDesign::Boolean", "Boolean008")
boolean9.Type = "Cut"
boolean9.addObjects([body15])
body19 = doc.addObject("PartDesign::Body", "Body018")
doc.recompute()

mirroring = doc.addObject("Part::Mirroring", "Mirroring")
mirroring.Source = body18
mirroring.Base = App.Vector(0, 0, 0)
mirroring.Normal = App.Vector(1, 0, 0)
body19.BaseFeature = mirroring
doc.recompute()
body20 = doc.addObject("PartDesign::Body", "Body019")

# Sketch on XY plane
sketch15 = body20.newObject("Sketcher::SketchObject", "Sketch014")
sketch15.AttachmentSupport = (doc.getObject("XY_Plane019"), [""])
sketch15.MapMode = "FlatFace"
sketch15.AttachmentOffset = App.Placement(App.Vector(0, 0, -64.5), App.Rotation())
sketch15.addGeometry(Part.LineSegment(App.Vector(-230, 62, 0), App.Vector(-230, 39, 0)), False)
sketch15.addGeometry(Part.LineSegment(App.Vector(-230, 39, 0), App.Vector(-223, 39, 0)), False)
sketch15.addGeometry(Part.LineSegment(App.Vector(-223, 39, 0), App.Vector(-223, 62, 0)), False)
sketch15.addGeometry(Part.LineSegment(App.Vector(-223, 62, 0), App.Vector(-230, 62, 0)), False)
sketch15.addConstraint(Sketcher.Constraint("Coincident", 0, 2, 1, 1))
sketch15.addConstraint(Sketcher.Constraint("Coincident", 1, 2, 2, 1))
sketch15.addConstraint(Sketcher.Constraint("Coincident", 2, 2, 3, 1))
sketch15.addConstraint(Sketcher.Constraint("Coincident", 3, 2, 0, 1))
sketch15.addConstraint(Sketcher.Constraint("Vertical", 0))
sketch15.addConstraint(Sketcher.Constraint("Horizontal", 1))
sketch15.addConstraint(Sketcher.Constraint("Vertical", 2))
sketch15.addConstraint(Sketcher.Constraint("Horizontal", 3))
sketch15.addConstraint(Sketcher.Constraint("DistanceX", 1, 1, 1, 2, Q("7 mm")))
sketch15.addConstraint(Sketcher.Constraint("DistanceY", 0, 2, 0, 1, Q("23 mm")))
sketch15.addConstraint(Sketcher.Constraint("DistanceX", 0, 2, -1, 1, Q("230 mm")))
sketch15.addConstraint(Sketcher.Constraint("DistanceY", -1, 1, 0, 2, Q("39 mm")))
pad15 = body20.newObject("PartDesign::Pad", "Pad014")
pad15.Profile = sketch15
pad15.Length = 129
body21 = doc.addObject("PartDesign::Body", "Body020")

# Sketch on XY plane
sketch16 = body21.newObject("Sketcher::SketchObject", "Sketch015")
sketch16.AttachmentSupport = (doc.getObject("XY_Plane020"), [""])
sketch16.MapMode = "FlatFace"
sketch16.AttachmentOffset = App.Placement(App.Vector(0, 0, -64.5), App.Rotation())
sketch16.addGeometry(Part.LineSegment(App.Vector(0, 9, 0), App.Vector(0, -21, 0)), False)
sketch16.addGeometry(Part.LineSegment(App.Vector(0, -21, 0), App.Vector(10, -21, 0)), False)
sketch16.addGeometry(Part.LineSegment(App.Vector(10, -21, 0), App.Vector(10, 9, 0)), False)
sketch16.addGeometry(Part.LineSegment(App.Vector(10, 9, 0), App.Vector(0, 9, 0)), False)
sketch16.addConstraint(Sketcher.Constraint("Coincident", 0, 2, 1, 1))
sketch16.addConstraint(Sketcher.Constraint("Coincident", 1, 2, 2, 1))
sketch16.addConstraint(Sketcher.Constraint("Coincident", 2, 2, 3, 1))
sketch16.addConstraint(Sketcher.Constraint("Coincident", 3, 2, 0, 1))
sketch16.addConstraint(Sketcher.Constraint("Vertical", 0))
sketch16.addConstraint(Sketcher.Constraint("Horizontal", 1))
sketch16.addConstraint(Sketcher.Constraint("Vertical", 2))
sketch16.addConstraint(Sketcher.Constraint("Horizontal", 3))
sketch16.addConstraint(Sketcher.Constraint("PointOnObject", 0, 2, -2))
sketch16.addConstraint(Sketcher.Constraint("DistanceX", 1, 1, 1, 2, Q("10 mm")))
sketch16.addConstraint(Sketcher.Constraint("DistanceY", 0, 2, 0, 1, Q("30 mm")))
sketch16.addConstraint(Sketcher.Constraint("DistanceY", 0, 2, -1, 1, Q("21 mm")))
pad16 = body21.newObject("PartDesign::Pad", "Pad015")
pad16.Profile = sketch16
pad16.Length = 129
body22 = doc.addObject("PartDesign::Body", "Body021")

# Sketch on XY plane
sketch17 = body22.newObject("Sketcher::SketchObject", "Sketch016")
sketch17.AttachmentSupport = (doc.getObject("XY_Plane021"), [""])
sketch17.MapMode = "FlatFace"
sketch17.addGeometry(Part.Circle(App.Vector(0, 0, 0), App.Vector(0, 0, 1), 50), False)
sketch17.addConstraint(Sketcher.Constraint("Coincident", 0, 3, -1, 1))
sketch17.addConstraint(Sketcher.Constraint("Diameter", 0, Q("100 mm")))
pad17 = body22.newObject("PartDesign::Pad", "Pad016")
pad17.Profile = sketch17
pad17.Length = 20
body23 = doc.addObject("PartDesign::Body", "Body022")
doc.recompute()

body22.Placement = App.Placement(App.Vector(0, 0, 0), App.Rotation(App.Vector(1, 0, 0), 90))
boolean10 = body23.newObject("PartDesign::Boolean", "Boolean009")
boolean10.Type = "Fuse"
boolean10.addObjects([body22])
body24 = doc.addObject("PartDesign::Body", "Body023")
doc.recompute()

body23.Placement = App.Placement(App.Vector(5, 20, 0), App.Rotation(App.Vector(0, 0, 1), 0))
boolean11 = body24.newObject("PartDesign::Boolean", "Boolean010")
boolean11.Type = "Fuse"
boolean11.addObjects([body23])
body25 = doc.addObject("PartDesign::Body", "Body024")

# Sketch on XY plane
sketch18 = body25.newObject("Sketcher::SketchObject", "Sketch017")
sketch18.AttachmentSupport = (doc.getObject("XY_Plane024"), [""])
sketch18.MapMode = "FlatFace"
sketch18.AttachmentOffset = App.Placement(App.Vector(0, 0, -64.5), App.Rotation())
sketch18.addGeometry(Part.LineSegment(App.Vector(-110, 20, 0), App.Vector(-110, 0, 0)), False)
sketch18.addGeometry(Part.LineSegment(App.Vector(-110, 0, 0), App.Vector(126, 0, 0)), False)
sketch18.addGeometry(Part.LineSegment(App.Vector(126, 0, 0), App.Vector(126, 20, 0)), False)
sketch18.addGeometry(Part.LineSegment(App.Vector(126, 20, 0), App.Vector(-110, 20, 0)), False)
sketch18.addConstraint(Sketcher.Constraint("Coincident", 0, 2, 1, 1))
sketch18.addConstraint(Sketcher.Constraint("Coincident", 1, 2, 2, 1))
sketch18.addConstraint(Sketcher.Constraint("Coincident", 2, 2, 3, 1))
sketch18.addConstraint(Sketcher.Constraint("Coincident", 3, 2, 0, 1))
sketch18.addConstraint(Sketcher.Constraint("Vertical", 0))
sketch18.addConstraint(Sketcher.Constraint("Horizontal", 1))
sketch18.addConstraint(Sketcher.Constraint("Vertical", 2))
sketch18.addConstraint(Sketcher.Constraint("Horizontal", 3))
sketch18.addConstraint(Sketcher.Constraint("PointOnObject", 0, 2, -1))
sketch18.addConstraint(Sketcher.Constraint("DistanceX", 1, 1, 1, 2, Q("237 mm")))
sketch18.addConstraint(Sketcher.Constraint("DistanceY", 0, 2, 0, 1, Q("20 mm")))
sketch18.addConstraint(Sketcher.Constraint("DistanceX", 0, 2, -1, 1, Q("110.5 mm")))
pad18 = body25.newObject("PartDesign::Pad", "Pad017")
pad18.Profile = sketch18
pad18.Length = 129
doc.recompute()

boolean12 = body25.newObject("PartDesign::Boolean", "Boolean011")
boolean12.Type = "Cut"
boolean12.addObjects([body24])
body26 = doc.addObject("PartDesign::Body", "Body025")
doc.recompute()

body25.Placement = App.Placement(App.Vector(-121.5, 12.56, 0), App.Rotation(App.Vector(0, 0, 1), 345))
boolean13 = body26.newObject("PartDesign::Boolean", "Boolean012")
boolean13.Type = "Fuse"
boolean13.addObjects([body25])
doc.recompute()

boolean14 = body26.newObject("PartDesign::Boolean", "Boolean013")
boolean14.Type = "Cut"
boolean14.addObjects([body21])
doc.recompute()

boolean15 = body26.newObject("PartDesign::Boolean", "Boolean014")
boolean15.Type = "Cut"
boolean15.addObjects([body20])
body27 = doc.addObject("PartDesign::Body", "Body026")
doc.recompute()

mirroring2 = doc.addObject("Part::Mirroring", "Mirroring001")
mirroring2.Source = body26
mirroring2.Base = App.Vector(0, 0, 0)
mirroring2.Normal = App.Vector(1, 0, 0)
body27.BaseFeature = mirroring2
doc.recompute()
body14.Visibility = False
body26.Visibility = False
mirroring.Visibility = False
mirroring2.Visibility = False

doc.recompute()
